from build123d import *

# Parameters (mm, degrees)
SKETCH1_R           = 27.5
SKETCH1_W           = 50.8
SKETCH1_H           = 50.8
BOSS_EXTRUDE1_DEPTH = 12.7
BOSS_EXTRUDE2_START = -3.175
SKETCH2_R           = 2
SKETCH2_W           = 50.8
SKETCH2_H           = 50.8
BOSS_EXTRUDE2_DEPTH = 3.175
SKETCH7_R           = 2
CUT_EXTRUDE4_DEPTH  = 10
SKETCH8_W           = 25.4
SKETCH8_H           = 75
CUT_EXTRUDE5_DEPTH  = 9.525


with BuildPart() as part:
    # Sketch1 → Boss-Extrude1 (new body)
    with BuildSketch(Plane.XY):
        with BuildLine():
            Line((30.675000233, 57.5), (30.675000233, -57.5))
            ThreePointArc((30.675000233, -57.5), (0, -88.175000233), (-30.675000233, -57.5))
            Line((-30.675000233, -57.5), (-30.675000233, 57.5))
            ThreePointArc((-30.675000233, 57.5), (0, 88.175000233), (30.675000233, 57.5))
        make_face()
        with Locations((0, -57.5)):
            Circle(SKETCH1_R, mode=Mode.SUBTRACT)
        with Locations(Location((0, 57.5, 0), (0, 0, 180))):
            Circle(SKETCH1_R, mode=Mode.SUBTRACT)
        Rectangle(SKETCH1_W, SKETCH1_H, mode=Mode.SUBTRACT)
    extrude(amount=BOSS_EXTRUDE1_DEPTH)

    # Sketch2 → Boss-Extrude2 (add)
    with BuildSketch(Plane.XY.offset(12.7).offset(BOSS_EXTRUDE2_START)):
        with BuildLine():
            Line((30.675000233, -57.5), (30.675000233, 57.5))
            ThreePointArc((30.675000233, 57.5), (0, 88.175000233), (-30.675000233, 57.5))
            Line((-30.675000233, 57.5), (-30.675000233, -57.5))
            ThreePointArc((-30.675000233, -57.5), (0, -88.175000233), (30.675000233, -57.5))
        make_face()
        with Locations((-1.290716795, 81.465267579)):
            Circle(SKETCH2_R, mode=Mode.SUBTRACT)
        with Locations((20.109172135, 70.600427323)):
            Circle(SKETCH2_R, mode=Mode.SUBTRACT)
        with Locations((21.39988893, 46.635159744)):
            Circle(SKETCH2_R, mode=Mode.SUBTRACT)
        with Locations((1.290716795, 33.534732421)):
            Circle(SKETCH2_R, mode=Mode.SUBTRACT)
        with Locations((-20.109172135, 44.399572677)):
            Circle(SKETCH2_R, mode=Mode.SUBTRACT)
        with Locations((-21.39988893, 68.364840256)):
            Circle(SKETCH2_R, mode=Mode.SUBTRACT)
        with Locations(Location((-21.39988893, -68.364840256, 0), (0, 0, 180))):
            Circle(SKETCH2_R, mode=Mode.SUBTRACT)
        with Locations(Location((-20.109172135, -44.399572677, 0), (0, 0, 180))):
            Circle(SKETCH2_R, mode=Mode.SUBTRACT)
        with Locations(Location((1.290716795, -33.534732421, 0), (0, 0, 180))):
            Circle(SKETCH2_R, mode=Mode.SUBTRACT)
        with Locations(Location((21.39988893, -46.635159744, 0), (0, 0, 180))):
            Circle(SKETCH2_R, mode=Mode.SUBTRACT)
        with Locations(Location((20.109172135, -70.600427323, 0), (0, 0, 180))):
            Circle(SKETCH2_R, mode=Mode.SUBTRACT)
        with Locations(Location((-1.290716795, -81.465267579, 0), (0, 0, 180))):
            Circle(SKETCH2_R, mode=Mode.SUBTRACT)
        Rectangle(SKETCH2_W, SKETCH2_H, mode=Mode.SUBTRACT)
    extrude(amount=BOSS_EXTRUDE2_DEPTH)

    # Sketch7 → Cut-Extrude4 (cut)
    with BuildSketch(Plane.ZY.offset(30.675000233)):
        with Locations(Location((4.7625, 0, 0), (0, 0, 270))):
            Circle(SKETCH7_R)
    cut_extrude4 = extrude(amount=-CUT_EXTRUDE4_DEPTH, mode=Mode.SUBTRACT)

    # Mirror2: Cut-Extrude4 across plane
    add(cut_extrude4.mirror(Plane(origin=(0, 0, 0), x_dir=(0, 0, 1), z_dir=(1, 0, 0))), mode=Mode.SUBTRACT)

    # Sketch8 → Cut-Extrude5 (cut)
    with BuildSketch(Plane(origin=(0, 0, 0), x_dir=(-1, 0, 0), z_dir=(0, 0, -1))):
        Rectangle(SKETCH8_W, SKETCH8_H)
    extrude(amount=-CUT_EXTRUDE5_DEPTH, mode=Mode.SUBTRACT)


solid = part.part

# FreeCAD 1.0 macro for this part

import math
import FreeCAD as App
import Part
import Sketcher

V = App.Vector

doc = App.newDocument("Part")
body = doc.addObject("PartDesign::Body", "Body")

sketch1 = body.newObject("Sketcher::SketchObject", "Sketch")
sketch1.AttachmentSupport = (doc.getObject("XY_Plane"), [""])
sketch1.MapMode = "FlatFace"
sketch1.addGeometry(Part.LineSegment(V(30.675, -57.5, 0), V(30.675, 57.5, 0)), False)
sketch1.addGeometry(Part.ArcOfCircle(Part.Circle(V(0, 57.5, 0), V(0, 0, 1), 30.675), math.radians(0), math.radians(180)), False)
sketch1.addGeometry(Part.LineSegment(V(-30.675, 57.5, 0), V(-30.675, -57.5, 0)), False)
sketch1.addGeometry(Part.ArcOfCircle(Part.Circle(V(0, -57.5, 0), V(0, 0, 1), 30.675), math.radians(180), math.radians(360)), False)
sketch1.addGeometry(Part.Circle(V(0, -57.5, 0), V(0, 0, 1), 27.5), False)
sketch1.addGeometry(Part.LineSegment(V(-25.4, -25.4, 0), V(-25.4, 25.4, 0)), False)
sketch1.addGeometry(Part.LineSegment(V(-25.4, 25.4, 0), V(25.4, 25.4, 0)), False)
sketch1.addGeometry(Part.LineSegment(V(25.4, 25.4, 0), V(25.4, -25.4, 0)), False)
sketch1.addGeometry(Part.LineSegment(V(25.4, -25.4, 0), V(-25.4, -25.4, 0)), False)
sketch1.addGeometry(Part.Circle(V(0, 57.5, 0), V(0, 0, 1), 27.5), False)
sketch1.addConstraint(Sketcher.Constraint("Tangent", 0, 2, 1, 1))
sketch1.addConstraint(Sketcher.Constraint("Tangent", 1, 2, 2, 1))
sketch1.addConstraint(Sketcher.Constraint("Tangent", 2, 2, 3, 1))
sketch1.addConstraint(Sketcher.Constraint("Tangent", 3, 2, 0, 1))
sketch1.addConstraint(Sketcher.Constraint("Coincident", 5, 2, 6, 1))
sketch1.addConstraint(Sketcher.Constraint("Coincident", 6, 2, 7, 1))
sketch1.addConstraint(Sketcher.Constraint("Coincident", 7, 2, 8, 1))
sketch1.addConstraint(Sketcher.Constraint("Coincident", 8, 2, 5, 1))
sketch1.addConstraint(Sketcher.Constraint("Vertical", 0))
sketch1.addConstraint(Sketcher.Constraint("Vertical", 2))
sketch1.addConstraint(Sketcher.Constraint("Vertical", 5))
sketch1.addConstraint(Sketcher.Constraint("Horizontal", 6))
sketch1.addConstraint(Sketcher.Constraint("Vertical", 7))
sketch1.addConstraint(Sketcher.Constraint("Horizontal", 8))
sketch1.addConstraint(Sketcher.Constraint("Coincident", 4, 3, 3, 3))
sketch1.addConstraint(Sketcher.Constraint("Coincident", 9, 3, 1, 3))
sketch1.addConstraint(Sketcher.Constraint("Equal", 4, 9))
sketch1.addConstraint(Sketcher.Constraint("Symmetric", 1, 3, 3, 3, -1, 1))
sketch1.addConstraint(Sketcher.Constraint("Symmetric", 5, 2, 7, 2, -1, 1))
sketch1.addConstraint(Sketcher.Constraint("Equal", 8, 5))
sketch1.addConstraint(Sketcher.Constraint("Diameter", 4, 55.0))
sketch1.addConstraint(Sketcher.Constraint("DistanceY", 0, 1, 0, 2, 115.0))
sketch1.addConstraint(Sketcher.Constraint("DistanceX", 6, 1, 6, 2, 50.8))
sketch1.addConstraint(Sketcher.Constraint("Radius", 1, 30.675))
pad1 = body.newObject("PartDesign::Pad", "Pad")
pad1.Profile = sketch1
pad1.Length = 12.7

sketch2 = body.newObject("Sketcher::SketchObject", "Sketch001")
sketch2.AttachmentSupport = (doc.getObject("XY_Plane"), [""])
sketch2.MapMode = "FlatFace"
sketch2.AttachmentOffset = App.Placement(V(0, 0, 9.525), App.Rotation())
sketch2.addGeometry(Part.LineSegment(V(30.675, -57.5, 0), V(30.675, 57.5, 0)), False)
sketch2.addGeometry(Part.ArcOfCircle(Part.Circle(V(0, 57.5, 0), V(0, 0, 1), 30.675), math.radians(0), math.radians(180)), False)
sketch2.addGeometry(Part.LineSegment(V(-30.675, 57.5, 0), V(-30.675, -57.5, 0)), False)
sketch2.addGeometry(Part.ArcOfCircle(Part.Circle(V(0, -57.5, 0), V(0, 0, 1), 30.675), math.radians(180), math.radians(360)), False)
sketch2.addGeometry(Part.Circle(V(-21.399889, -68.36484, 0), V(0, 0, 1), 2), False)
sketch2.addGeometry(Part.Circle(V(-20.109172, -44.399573, 0), V(0, 0, 1), 2), False)
sketch2.addGeometry(Part.Circle(V(-1.290717, -81.465268, 0), V(0, 0, 1), 2), False)
sketch2.addGeometry(Part.Circle(V(20.109172, -70.600427, 0), V(0, 0, 1), 2), False)
sketch2.addGeometry(Part.Circle(V(21.399889, -46.63516, 0), V(0, 0, 1), 2), False)
sketch2.addGeometry(Part.Circle(V(1.290717, -33.534732, 0), V(0, 0, 1), 2), False)
sketch2.addGeometry(Part.LineSegment(V(25.4, -25.4, 0), V(-25.4, -25.4, 0)), False)
sketch2.addGeometry(Part.LineSegment(V(-25.4, -25.4, 0), V(-25.4, 25.4, 0)), False)
sketch2.addGeometry(Part.LineSegment(V(-25.4, 25.4, 0), V(25.4, 25.4, 0)), False)
sketch2.addGeometry(Part.LineSegment(V(25.4, 25.4, 0), V(25.4, -25.4, 0)), False)
sketch2.addGeometry(Part.Circle(V(-20.109172, 44.399573, 0), V(0, 0, 1), 2), False)
sketch2.addGeometry(Part.Circle(V(-21.399889, 68.36484, 0), V(0, 0, 1), 2), False)
sketch2.addGeometry(Part.Circle(V(-1.290717, 81.465268, 0), V(0, 0, 1), 2), False)
sketch2.addGeometry(Part.Circle(V(1.290717, 33.534732, 0), V(0, 0, 1), 2), False)
sketch2.addGeometry(Part.Circle(V(21.399889, 46.63516, 0), V(0, 0, 1), 2), False)
sketch2.addGeometry(Part.Circle(V(20.109172, 70.600427, 0), V(0, 0, 1), 2), False)
sketch2.addConstraint(Sketcher.Constraint("Tangent", 0, 2, 1, 1))
sketch2.addConstraint(Sketcher.Constraint("Tangent", 1, 2, 2, 1))
sketch2.addConstraint(Sketcher.Constraint("Tangent", 2, 2, 3, 1))
sketch2.addConstraint(Sketcher.Constraint("Tangent", 3, 2, 0, 1))
sketch2.addConstraint(Sketcher.Constraint("Coincident", 10, 2, 11, 1))
sketch2.addConstraint(Sketcher.Constraint("Coincident", 11, 2, 12, 1))
sketch2.addConstraint(Sketcher.Constraint("Coincident", 12, 2, 13, 1))
sketch2.addConstraint(Sketcher.Constraint("Coincident", 13, 2, 10, 1))
sketch2.addConstraint(Sketcher.Constraint("Vertical", 0))
sketch2.addConstraint(Sketcher.Constraint("Vertical", 2))
sketch2.addConstraint(Sketcher.Constraint("Horizontal", 10))
sketch2.addConstraint(Sketcher.Constraint("Vertical", 11))
sketch2.addConstraint(Sketcher.Constraint("Horizontal", 12))
sketch2.addConstraint(Sketcher.Constraint("Vertical", 13))
sketch2.addConstraint(Sketcher.Constraint("Equal", 4, 5))
sketch2.addConstraint(Sketcher.Constraint("Equal", 5, 6))
sketch2.addConstraint(Sketcher.Constraint("Equal", 6, 7))
sketch2.addConstraint(Sketcher.Constraint("Equal", 7, 8))
sketch2.addConstraint(Sketcher.Constraint("Equal", 8, 9))
sketch2.addConstraint(Sketcher.Constraint("Equal", 9, 14))
sketch2.addConstraint(Sketcher.Constraint("Equal", 14, 15))
sketch2.addConstraint(Sketcher.Constraint("Equal", 15, 16))
sketch2.addConstraint(Sketcher.Constraint("Equal", 16, 17))
sketch2.addConstraint(Sketcher.Constraint("Equal", 17, 18))
sketch2.addConstraint(Sketcher.Constraint("Equal", 18, 19))
sketch2.addConstraint(Sketcher.Constraint("Symmetric", 1, 3, 3, 3, -1, 1))
sketch2.addConstraint(Sketcher.Constraint("Symmetric", 10, 2, 12, 2, -1, 1))
sketch2.addConstraint(Sketcher.Constraint("Symmetric", 5, 3, 14, 3, -1))
sketch2.addConstraint(Sketcher.Constraint("Symmetric", 4, 3, 15, 3, -1))
sketch2.addConstraint(Sketcher.Constraint("Symmetric", 6, 3, 16, 3, -1))
sketch2.addConstraint(Sketcher.Constraint("Symmetric", 9, 3, 17, 3, -1))
sketch2.addConstraint(Sketcher.Constraint("Symmetric", 8, 3, 18, 3, -1))
sketch2.addConstraint(Sketcher.Constraint("Symmetric", 7, 3, 19, 3, -1))
sketch2.addConstraint(Sketcher.Constraint("Equal", 12, 11))
sketch2.addConstraint(Sketcher.Constraint("Diameter", 4, 4.0))
sketch2.addConstraint(Sketcher.Constraint("DistanceY", 0, 1, 0, 2, 115.0))
sketch2.addConstraint(Sketcher.Constraint("DistanceX", 10, 2, 10, 1, 50.8))
sketch2.addConstraint(Sketcher.Constraint("Radius", 1, 30.675))
sketch2.addConstraint(Sketcher.Constraint("DistanceY", 8, 3, 15, 3, 115.0))
sketch2.addConstraint(Sketcher.Constraint("DistanceY", 9, 3, 16, 3, 115.0))
sketch2.addConstraint(Sketcher.Constraint("DistanceX", 4, 3, -1, 1, 21.399889))
sketch2.addConstraint(Sketcher.Constraint("DistanceY", 4, 3, -1, 1, 68.36484))
sketch2.addConstraint(Sketcher.Constraint("DistanceX", -1, 1, 8, 3, 21.399889))
sketch2.addConstraint(Sketcher.Constraint("DistanceX", 6, 3, 7, 3, 21.399889))
sketch2.addConstraint(Sketcher.Constraint("DistanceY", 6, 3, 7, 3, 10.86484))
sketch2.addConstraint(Sketcher.Constraint("DistanceX", 4, 3, 7, 3, 41.509061))
sketch2.addConstraint(Sketcher.Constraint("DistanceX", 5, 3, 8, 3, 41.509061))
sketch2.addConstraint(Sketcher.Constraint("DistanceX", 5, 3, 9, 3, 21.399889))
sketch2.addConstraint(Sketcher.Constraint("DistanceY", 5, 3, 9, 3, 10.86484))
sketch2.addConstraint(Sketcher.Constraint("DistanceY", 5, 3, -1, 1, 44.399573))
pad2 = body.newObject("PartDesign::Pad", "Pad001")
pad2.Profile = sketch2
pad2.Length = 3.175

sketch3 = body.newObject("Sketcher::SketchObject", "Sketch002")
sketch3.AttachmentSupport = (doc.getObject("YZ_Plane"), [""])
sketch3.MapMode = "FlatFace"
sketch3.AttachmentOffset = App.Placement(V(0, 0, -30.675), App.Rotation())
sketch3.addGeometry(Part.Circle(V(0, 4.7625, 0), V(0, 0, 1), 2), False)
sketch3.addConstraint(Sketcher.Constraint("PointOnObject", 0, 3, -2))
sketch3.addConstraint(Sketcher.Constraint("Diameter", 0, 4.0))
sketch3.addConstraint(Sketcher.Constraint("DistanceY", -1, 1, 0, 3, 4.7625))
pocket1 = body.newObject("PartDesign::Pocket", "Pocket")
pocket1.Profile = sketch3
pocket1.Length = 10
pocket1.Reversed = True
doc.recompute()

mirrored = body.newObject("PartDesign::Mirrored", "Mirrored")
mirrored.Originals = [pocket1]
mirrored.MirrorPlane = (doc.getObject("YZ_Plane"), [""])
body.Tip = mirrored

sketch4 = body.newObject("Sketcher::SketchObject", "Sketch003")
sketch4.AttachmentSupport = (doc.getObject("XY_Plane"), [""])
sketch4.MapMode = "FlatFace"
sketch4.addGeometry(Part.LineSegment(V(12.7, 37.5, 0), V(12.7, -37.5, 0)), False)
sketch4.addGeometry(Part.LineSegment(V(12.7, -37.5, 0), V(-12.7, -37.5, 0)), False)
sketch4.addGeometry(Part.LineSegment(V(-12.7, -37.5, 0), V(-12.7, 37.5, 0)), False)
sketch4.addGeometry(Part.LineSegment(V(-12.7, 37.5, 0), V(12.7, 37.5, 0)), False)
sketch4.addConstraint(Sketcher.Constraint("Coincident", 0, 2, 1, 1))
sketch4.addConstraint(Sketcher.Constraint("Coincident", 1, 2, 2, 1))
sketch4.addConstraint(Sketcher.Constraint("Coincident", 2, 2, 3, 1))
sketch4.addConstraint(Sketcher.Constraint("Coincident", 3, 2, 0, 1))
sketch4.addConstraint(Sketcher.Constraint("Vertical", 0))
sketch4.addConstraint(Sketcher.Constraint("Horizontal", 1))
sketch4.addConstraint(Sketcher.Constraint("Vertical", 2))
sketch4.addConstraint(Sketcher.Constraint("Horizontal", 3))
sketch4.addConstraint(Sketcher.Constraint("Symmetric", 0, 2, 2, 2, -1, 1))
sketch4.addConstraint(Sketcher.Constraint("DistanceY", 0, 2, 0, 1, 75.0))
sketch4.addConstraint(Sketcher.Constraint("DistanceX", 1, 2, 1, 1, 25.4))
pocket2 = body.newObject("PartDesign::Pocket", "Pocket001")
pocket2.Profile = sketch4
pocket2.Length = 9.525
pocket2.Reversed = True

doc.recompute()
